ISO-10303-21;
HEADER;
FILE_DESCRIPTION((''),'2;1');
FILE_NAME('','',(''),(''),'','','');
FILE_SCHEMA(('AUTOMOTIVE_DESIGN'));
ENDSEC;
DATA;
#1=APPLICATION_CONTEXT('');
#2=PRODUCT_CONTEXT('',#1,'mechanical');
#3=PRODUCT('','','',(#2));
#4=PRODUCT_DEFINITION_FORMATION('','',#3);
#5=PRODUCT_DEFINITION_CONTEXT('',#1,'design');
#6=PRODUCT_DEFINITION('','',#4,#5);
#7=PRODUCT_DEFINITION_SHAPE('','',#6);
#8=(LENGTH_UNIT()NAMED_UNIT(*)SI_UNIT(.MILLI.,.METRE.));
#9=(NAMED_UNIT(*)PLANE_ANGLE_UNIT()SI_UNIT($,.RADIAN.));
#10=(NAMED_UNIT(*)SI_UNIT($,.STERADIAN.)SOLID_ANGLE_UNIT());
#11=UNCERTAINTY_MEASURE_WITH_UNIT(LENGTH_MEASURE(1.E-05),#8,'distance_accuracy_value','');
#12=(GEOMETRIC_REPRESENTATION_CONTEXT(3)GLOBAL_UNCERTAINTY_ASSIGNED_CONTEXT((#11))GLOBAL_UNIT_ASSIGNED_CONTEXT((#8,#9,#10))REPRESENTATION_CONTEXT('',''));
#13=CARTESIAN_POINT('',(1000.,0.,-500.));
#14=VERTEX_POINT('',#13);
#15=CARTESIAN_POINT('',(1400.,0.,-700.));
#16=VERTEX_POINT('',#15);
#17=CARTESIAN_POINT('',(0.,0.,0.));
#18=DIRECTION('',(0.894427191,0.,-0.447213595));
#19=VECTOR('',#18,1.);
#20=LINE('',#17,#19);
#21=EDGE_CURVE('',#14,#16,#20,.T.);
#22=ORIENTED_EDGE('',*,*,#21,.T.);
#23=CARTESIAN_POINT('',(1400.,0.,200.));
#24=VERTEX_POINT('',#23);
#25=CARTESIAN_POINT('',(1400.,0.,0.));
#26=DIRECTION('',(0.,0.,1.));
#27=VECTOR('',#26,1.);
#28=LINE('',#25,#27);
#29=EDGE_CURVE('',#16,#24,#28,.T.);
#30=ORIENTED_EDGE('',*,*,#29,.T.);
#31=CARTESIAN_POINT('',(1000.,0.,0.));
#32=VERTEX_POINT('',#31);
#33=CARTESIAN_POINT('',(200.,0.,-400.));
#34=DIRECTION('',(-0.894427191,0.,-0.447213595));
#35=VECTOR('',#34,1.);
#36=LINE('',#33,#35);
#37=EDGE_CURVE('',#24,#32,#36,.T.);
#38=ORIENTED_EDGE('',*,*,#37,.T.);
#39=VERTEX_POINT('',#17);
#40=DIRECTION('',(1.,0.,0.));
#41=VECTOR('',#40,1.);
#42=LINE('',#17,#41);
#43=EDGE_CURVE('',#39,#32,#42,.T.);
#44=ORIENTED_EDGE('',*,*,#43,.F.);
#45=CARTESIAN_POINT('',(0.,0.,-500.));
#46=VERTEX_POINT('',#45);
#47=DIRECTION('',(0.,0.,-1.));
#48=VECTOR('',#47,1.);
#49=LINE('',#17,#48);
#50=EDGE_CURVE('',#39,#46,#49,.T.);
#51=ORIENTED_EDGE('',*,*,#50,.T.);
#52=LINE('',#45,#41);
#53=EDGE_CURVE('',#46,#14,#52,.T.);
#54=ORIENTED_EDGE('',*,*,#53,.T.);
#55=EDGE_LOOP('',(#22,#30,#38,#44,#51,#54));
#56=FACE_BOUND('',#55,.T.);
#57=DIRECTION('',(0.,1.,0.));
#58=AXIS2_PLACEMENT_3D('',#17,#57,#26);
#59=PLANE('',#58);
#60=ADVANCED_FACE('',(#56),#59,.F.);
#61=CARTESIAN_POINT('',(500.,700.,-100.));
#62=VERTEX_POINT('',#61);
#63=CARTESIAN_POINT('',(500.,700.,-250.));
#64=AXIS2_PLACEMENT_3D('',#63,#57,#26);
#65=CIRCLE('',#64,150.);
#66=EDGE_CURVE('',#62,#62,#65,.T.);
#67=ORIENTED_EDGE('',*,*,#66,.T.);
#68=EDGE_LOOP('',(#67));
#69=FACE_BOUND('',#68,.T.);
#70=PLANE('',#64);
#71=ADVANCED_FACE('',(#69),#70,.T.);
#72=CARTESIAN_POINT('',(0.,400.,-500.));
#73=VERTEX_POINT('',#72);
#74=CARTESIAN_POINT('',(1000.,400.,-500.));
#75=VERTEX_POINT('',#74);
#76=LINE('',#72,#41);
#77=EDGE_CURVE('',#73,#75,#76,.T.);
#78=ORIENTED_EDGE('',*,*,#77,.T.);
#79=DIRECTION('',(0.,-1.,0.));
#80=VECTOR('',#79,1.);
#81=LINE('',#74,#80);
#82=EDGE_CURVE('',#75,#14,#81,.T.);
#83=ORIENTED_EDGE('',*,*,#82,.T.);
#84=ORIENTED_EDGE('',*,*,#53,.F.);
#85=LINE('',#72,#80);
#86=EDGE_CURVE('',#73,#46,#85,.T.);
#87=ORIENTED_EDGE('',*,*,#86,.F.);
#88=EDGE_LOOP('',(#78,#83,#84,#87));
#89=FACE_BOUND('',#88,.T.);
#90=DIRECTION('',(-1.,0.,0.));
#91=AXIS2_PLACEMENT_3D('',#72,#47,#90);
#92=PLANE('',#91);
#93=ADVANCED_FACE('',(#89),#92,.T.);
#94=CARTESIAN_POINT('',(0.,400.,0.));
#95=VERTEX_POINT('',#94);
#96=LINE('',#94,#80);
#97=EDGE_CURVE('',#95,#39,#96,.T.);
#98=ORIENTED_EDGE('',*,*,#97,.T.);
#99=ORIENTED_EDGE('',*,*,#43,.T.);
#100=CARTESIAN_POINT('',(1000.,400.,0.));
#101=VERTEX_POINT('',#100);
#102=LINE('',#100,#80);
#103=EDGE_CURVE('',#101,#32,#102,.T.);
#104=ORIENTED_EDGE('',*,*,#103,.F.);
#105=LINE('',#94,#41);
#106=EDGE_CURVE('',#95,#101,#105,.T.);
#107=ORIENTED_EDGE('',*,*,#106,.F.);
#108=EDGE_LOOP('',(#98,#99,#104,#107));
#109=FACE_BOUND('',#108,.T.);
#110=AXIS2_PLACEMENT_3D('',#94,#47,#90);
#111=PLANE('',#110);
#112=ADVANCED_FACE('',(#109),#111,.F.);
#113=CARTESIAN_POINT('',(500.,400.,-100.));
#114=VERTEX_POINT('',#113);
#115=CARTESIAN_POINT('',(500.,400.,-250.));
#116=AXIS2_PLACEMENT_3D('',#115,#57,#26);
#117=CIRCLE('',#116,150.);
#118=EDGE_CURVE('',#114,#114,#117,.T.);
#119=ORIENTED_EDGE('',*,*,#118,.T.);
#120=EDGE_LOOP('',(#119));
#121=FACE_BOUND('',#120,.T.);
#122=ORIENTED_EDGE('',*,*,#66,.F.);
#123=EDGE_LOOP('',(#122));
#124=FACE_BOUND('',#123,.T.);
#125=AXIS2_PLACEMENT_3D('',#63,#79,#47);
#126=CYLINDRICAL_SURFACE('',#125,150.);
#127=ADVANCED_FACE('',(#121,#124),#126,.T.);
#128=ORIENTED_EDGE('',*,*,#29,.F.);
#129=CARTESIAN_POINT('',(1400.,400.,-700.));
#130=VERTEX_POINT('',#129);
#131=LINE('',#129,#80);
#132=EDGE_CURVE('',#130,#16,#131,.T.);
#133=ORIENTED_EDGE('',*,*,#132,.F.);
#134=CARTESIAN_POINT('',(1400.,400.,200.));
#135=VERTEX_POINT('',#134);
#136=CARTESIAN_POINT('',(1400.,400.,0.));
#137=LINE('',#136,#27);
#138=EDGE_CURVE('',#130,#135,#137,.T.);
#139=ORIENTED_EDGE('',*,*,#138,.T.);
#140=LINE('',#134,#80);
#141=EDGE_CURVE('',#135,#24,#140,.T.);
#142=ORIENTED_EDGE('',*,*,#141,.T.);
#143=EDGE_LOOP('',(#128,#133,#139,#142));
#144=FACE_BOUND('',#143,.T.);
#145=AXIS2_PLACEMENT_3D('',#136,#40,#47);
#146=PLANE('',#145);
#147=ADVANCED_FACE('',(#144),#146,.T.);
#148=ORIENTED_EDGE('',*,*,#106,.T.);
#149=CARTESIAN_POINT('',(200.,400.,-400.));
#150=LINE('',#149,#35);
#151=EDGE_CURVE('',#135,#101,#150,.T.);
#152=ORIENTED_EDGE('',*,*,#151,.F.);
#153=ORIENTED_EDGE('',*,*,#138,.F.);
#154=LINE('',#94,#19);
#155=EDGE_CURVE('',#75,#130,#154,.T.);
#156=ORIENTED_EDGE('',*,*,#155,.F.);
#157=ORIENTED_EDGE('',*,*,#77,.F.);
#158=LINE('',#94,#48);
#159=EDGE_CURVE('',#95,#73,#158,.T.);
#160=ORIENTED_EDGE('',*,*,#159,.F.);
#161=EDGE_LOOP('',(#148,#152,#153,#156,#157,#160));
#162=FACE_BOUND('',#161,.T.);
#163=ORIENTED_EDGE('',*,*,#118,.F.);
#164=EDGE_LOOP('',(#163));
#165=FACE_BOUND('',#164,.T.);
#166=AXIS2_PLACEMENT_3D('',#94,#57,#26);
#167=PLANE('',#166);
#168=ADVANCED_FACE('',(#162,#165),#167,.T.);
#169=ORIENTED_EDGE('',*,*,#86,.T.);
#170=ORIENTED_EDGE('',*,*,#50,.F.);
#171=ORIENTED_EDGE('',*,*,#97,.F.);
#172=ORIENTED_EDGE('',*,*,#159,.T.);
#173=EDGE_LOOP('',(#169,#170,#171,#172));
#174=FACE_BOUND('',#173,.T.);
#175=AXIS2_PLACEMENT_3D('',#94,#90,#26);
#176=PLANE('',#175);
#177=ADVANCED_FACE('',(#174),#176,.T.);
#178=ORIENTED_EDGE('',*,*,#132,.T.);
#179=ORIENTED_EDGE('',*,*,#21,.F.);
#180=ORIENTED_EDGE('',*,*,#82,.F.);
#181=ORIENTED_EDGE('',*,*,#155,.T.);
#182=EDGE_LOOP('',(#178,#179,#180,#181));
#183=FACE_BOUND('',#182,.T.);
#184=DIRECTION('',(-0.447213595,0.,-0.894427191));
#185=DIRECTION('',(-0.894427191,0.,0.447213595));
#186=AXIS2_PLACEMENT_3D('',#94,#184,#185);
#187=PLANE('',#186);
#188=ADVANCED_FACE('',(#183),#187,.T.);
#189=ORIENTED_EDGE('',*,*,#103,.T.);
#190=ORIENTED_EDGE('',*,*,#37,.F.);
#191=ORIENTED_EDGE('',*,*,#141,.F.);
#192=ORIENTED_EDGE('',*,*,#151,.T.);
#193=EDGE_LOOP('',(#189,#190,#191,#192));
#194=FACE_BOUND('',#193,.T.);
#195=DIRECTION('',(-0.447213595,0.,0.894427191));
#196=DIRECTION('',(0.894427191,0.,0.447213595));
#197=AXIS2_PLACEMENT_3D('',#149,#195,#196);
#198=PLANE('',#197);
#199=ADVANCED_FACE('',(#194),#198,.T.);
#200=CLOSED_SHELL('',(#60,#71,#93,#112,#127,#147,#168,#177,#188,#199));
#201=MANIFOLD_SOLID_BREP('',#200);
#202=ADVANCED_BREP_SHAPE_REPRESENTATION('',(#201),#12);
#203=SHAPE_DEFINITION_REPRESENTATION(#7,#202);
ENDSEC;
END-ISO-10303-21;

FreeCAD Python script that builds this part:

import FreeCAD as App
import Part
import Sketcher

doc = App.newDocument("Part")
body = doc.addObject("PartDesign::Body", "Body")

# Sketch on XZ plane
sketch1 = doc.addObject("Sketcher::SketchObject", "Sketch")
body.addObject(sketch1)
sketch1.AttachmentSupport = (doc.XZ_Plane, [""])
sketch1.MapMode = "FlatFace"
sketch1.addGeometry([
    Part.LineSegment(App.Vector(1000, 0, 0), App.Vector(1400, 200, 0)),  # 0
    Part.LineSegment(App.Vector(1400, 200, 0), App.Vector(1400, -700, 0)),  # 1
    Part.LineSegment(App.Vector(1400, -700, 0), App.Vector(1000, -500, 0)),  # 2
    Part.LineSegment(App.Vector(1000, -500, 0), App.Vector(0, -500, 0)),  # 3
    Part.LineSegment(App.Vector(0, -500, 0), App.Vector(0, 0, 0)),  # 4
    Part.LineSegment(App.Vector(0, 0, 0), App.Vector(1000, 0, 0)),  # 5
], False)
sketch1.addConstraint([
    Sketcher.Constraint("Coincident", 0, 2, 1, 1),
    Sketcher.Constraint("Coincident", 1, 2, 2, 1),
    Sketcher.Constraint("Coincident", 2, 2, 3, 1),
    Sketcher.Constraint("Coincident", 3, 2, 4, 1),
    Sketcher.Constraint("Coincident", 4, 2, 5, 1),
    Sketcher.Constraint("Coincident", 5, 2, 0, 1),
    Sketcher.Constraint("Vertical", 1),
    Sketcher.Constraint("Horizontal", 3),
    Sketcher.Constraint("Vertical", 4),
    Sketcher.Constraint("Horizontal", 5),
    Sketcher.Constraint("Coincident", 4, 2, -1, 1),
    Sketcher.Constraint("Vertical", 2, 2, 5, 2),
    Sketcher.Constraint("Equal", 0, 2),
    Sketcher.Constraint("DistanceX", 3, 2, 3, 1, 1000.0),
    Sketcher.Constraint("DistanceY", 1, 2, 1, 1, 900.0),
    Sketcher.Constraint("DistanceY", 4, 1, 4, 2, 500.0),
    Sketcher.Constraint("DistanceX", -1, 1, 0, 2, 1400.0),
])
pad1 = doc.addObject("PartDesign::Pad", "Pad")
body.addObject(pad1)
pad1.Profile = sketch1
pad1.Length = 400
pad1.Reversed = True

# Sketch on XZ plane
sketch2 = doc.addObject("Sketcher::SketchObject", "Sketch001")
body.addObject(sketch2)
sketch2.AttachmentSupport = (doc.XZ_Plane, [""])
sketch2.MapMode = "FlatFace"
sketch2.AttachmentOffset = App.Placement(App.Vector(0, 0, -400), App.Rotation())
sketch2.addGeometry(Part.Circle(App.Vector(500, -250, 0), App.Vector(0, 0, 1), 150), False)
sketch2.addConstraint([
    Sketcher.Constraint("Diameter", 0, 300.0),
    Sketcher.Constraint("DistanceX", -1, 1, 0, 3, 500.0),
    Sketcher.Constraint("DistanceY", 0, 3, -1, 1, 250.0),
])
pad2 = doc.addObject("PartDesign::Pad", "Pad001")
body.addObject(pad2)
pad2.Profile = sketch2
pad2.Length = 300
pad2.Reversed = True

doc.recompute()
